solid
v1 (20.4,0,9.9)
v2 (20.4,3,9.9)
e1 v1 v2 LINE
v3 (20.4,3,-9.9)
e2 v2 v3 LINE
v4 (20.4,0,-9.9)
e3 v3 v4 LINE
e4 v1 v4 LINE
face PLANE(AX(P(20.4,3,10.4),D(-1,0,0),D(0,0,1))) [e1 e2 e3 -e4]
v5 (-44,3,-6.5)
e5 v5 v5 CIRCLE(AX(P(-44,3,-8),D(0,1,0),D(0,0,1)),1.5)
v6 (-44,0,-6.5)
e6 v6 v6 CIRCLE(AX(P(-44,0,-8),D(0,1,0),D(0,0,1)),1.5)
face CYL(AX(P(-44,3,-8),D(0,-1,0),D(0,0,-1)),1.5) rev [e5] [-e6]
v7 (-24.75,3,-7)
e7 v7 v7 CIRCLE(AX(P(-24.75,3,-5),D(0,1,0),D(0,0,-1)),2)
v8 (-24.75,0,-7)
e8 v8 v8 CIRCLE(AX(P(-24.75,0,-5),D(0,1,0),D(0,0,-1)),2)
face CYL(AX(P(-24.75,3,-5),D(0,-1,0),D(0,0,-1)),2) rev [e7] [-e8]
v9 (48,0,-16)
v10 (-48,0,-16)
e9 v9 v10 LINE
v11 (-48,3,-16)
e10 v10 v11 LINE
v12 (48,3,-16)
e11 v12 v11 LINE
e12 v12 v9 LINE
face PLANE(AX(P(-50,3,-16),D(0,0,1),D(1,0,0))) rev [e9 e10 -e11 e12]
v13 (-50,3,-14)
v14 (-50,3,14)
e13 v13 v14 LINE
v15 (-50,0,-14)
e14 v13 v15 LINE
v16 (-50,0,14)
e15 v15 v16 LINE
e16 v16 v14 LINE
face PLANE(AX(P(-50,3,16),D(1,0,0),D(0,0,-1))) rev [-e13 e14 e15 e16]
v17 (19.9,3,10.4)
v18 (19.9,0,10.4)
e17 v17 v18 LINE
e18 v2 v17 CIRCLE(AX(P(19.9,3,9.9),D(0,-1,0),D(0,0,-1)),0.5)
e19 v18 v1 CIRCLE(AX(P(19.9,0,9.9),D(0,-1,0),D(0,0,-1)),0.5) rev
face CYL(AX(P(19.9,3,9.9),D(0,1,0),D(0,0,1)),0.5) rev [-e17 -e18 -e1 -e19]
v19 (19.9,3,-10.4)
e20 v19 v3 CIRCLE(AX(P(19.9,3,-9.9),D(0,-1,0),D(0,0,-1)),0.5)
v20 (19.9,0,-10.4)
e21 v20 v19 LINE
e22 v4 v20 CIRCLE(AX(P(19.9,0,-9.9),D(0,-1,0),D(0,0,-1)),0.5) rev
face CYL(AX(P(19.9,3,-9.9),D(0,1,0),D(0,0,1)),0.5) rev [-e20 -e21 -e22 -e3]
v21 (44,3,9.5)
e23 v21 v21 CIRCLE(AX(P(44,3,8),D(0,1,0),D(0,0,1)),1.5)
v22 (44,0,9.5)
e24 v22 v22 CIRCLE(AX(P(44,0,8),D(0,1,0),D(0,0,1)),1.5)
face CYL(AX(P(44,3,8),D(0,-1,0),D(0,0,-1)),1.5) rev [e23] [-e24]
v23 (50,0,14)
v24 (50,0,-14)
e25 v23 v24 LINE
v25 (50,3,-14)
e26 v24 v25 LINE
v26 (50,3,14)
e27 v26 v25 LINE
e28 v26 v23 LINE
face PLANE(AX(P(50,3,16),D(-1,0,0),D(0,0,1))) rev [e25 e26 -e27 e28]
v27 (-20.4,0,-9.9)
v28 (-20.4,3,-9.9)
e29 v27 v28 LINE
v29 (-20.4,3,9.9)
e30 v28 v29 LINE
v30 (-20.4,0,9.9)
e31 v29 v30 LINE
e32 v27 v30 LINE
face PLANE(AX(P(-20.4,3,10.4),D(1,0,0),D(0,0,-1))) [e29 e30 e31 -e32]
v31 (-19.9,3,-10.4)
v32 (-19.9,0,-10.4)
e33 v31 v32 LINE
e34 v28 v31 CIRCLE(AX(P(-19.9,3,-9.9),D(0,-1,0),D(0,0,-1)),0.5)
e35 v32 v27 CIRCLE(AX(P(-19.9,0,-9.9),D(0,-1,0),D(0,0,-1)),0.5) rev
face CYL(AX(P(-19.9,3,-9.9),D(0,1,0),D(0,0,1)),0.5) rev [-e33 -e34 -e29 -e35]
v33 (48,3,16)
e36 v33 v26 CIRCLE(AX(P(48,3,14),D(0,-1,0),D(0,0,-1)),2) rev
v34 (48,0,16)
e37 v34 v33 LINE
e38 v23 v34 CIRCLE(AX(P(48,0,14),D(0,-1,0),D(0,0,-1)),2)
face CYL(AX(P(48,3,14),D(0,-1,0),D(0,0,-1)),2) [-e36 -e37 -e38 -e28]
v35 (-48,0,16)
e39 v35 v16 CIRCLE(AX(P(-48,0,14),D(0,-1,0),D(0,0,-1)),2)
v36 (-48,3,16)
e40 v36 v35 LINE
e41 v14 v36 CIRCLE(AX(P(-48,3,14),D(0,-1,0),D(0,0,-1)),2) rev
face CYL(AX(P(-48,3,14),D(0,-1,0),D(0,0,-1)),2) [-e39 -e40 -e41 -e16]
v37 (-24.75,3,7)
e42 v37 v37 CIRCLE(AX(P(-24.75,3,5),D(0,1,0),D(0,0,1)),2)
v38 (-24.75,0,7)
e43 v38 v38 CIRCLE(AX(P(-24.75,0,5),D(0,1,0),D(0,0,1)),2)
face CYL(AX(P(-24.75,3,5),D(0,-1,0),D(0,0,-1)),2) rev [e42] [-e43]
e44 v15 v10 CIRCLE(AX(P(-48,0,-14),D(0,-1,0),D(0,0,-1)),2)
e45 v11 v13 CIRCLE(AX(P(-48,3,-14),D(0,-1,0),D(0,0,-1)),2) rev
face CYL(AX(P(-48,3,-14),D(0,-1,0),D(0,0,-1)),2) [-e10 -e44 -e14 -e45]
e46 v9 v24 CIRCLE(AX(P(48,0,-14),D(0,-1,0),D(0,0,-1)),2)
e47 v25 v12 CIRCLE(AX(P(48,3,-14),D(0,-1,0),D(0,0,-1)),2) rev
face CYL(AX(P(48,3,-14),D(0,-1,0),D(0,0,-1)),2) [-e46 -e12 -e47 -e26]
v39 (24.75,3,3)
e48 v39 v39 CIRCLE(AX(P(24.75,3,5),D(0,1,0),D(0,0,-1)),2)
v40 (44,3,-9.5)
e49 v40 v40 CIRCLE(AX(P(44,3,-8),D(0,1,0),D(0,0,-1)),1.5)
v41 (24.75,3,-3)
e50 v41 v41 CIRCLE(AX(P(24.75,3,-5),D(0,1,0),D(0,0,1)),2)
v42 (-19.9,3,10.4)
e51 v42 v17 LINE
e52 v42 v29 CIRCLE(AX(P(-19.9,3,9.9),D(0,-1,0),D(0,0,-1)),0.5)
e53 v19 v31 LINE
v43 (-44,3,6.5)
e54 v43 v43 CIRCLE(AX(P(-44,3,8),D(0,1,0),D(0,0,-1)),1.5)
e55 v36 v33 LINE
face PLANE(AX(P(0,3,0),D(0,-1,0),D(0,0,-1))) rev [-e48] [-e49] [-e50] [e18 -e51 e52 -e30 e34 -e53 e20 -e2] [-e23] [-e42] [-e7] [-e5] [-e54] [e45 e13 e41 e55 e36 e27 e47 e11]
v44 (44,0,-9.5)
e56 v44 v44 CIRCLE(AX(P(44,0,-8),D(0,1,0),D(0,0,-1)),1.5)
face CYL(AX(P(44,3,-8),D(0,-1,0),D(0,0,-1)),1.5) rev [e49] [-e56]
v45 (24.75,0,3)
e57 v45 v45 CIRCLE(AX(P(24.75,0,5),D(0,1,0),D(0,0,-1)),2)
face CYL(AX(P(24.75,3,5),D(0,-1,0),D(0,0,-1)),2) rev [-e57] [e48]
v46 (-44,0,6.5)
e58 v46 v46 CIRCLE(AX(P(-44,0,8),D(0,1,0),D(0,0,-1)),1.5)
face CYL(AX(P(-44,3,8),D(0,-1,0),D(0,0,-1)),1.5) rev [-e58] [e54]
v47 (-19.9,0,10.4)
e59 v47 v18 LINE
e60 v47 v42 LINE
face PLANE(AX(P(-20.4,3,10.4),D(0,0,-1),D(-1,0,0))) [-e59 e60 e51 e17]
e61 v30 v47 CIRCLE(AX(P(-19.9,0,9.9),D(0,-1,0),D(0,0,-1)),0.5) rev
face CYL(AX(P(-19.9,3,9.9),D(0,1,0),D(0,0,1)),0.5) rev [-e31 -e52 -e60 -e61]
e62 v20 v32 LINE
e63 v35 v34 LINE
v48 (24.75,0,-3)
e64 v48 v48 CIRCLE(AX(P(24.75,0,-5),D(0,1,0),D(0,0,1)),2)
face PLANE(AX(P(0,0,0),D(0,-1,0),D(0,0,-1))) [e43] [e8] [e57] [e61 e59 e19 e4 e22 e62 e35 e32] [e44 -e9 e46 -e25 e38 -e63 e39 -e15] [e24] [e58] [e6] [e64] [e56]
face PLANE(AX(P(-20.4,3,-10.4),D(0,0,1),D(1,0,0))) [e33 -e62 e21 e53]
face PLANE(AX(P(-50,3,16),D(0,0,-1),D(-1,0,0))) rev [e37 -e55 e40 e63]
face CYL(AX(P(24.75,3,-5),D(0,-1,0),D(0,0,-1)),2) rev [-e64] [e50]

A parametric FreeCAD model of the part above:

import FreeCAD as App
import Part
import Sketcher

V = App.Vector


def edges_at(feature, points):
    """Names of the edges that pass closest to the given points."""
    edges = feature.Shape.Edges
    near = lambda p: min(range(len(edges)), key=lambda i: edges[i].distToShape(Part.Vertex(*p))[0])
    return sorted({f"Edge{near(p) + 1}" for p in points})

doc = App.newDocument("Part")
body = doc.addObject("PartDesign::Body", "Body")

# Sketch on XZ plane
sketch1 = body.newObject("Sketcher::SketchObject", "Sketch")
sketch1.AttachmentSupport = (doc.getObject("XZ_Plane"), [""])
sketch1.MapMode = "FlatFace"
sketch1.addGeometry(Part.LineSegment(V(-50, -16, 0), V(-50, 16, 0)), False)
sketch1.addGeometry(Part.LineSegment(V(-50, 16, 0), V(50, 16, 0)), False)
sketch1.addGeometry(Part.LineSegment(V(50, 16, 0), V(50, -16, 0)), False)
sketch1.addGeometry(Part.LineSegment(V(50, -16, 0), V(-50, -16, 0)), False)
sketch1.addGeometry(Part.Circle(V(-44, 8, 0), V(0, 0, 1), 1.5), False)
sketch1.addGeometry(Part.Circle(V(-24.8, 5, 0), V(0, 0, 1), 2), False)
sketch1.addGeometry(Part.Circle(V(44, 8, 0), V(0, 0, 1), 1.5), False)
sketch1.addGeometry(Part.Circle(V(24.8, 5, 0), V(0, 0, 1), 2), False)
sketch1.addGeometry(Part.Circle(V(-24.8, -5, 0), V(0, 0, 1), 2), False)
sketch1.addGeometry(Part.Circle(V(-44, -8, 0), V(0, 0, 1), 1.5), False)
sketch1.addGeometry(Part.LineSegment(V(20.4, 10.4, 0), V(-20.4, 10.4, 0)), False)
sketch1.addGeometry(Part.LineSegment(V(-20.4, 10.4, 0), V(-20.4, -10.4, 0)), False)
sketch1.addGeometry(Part.LineSegment(V(-20.4, -10.4, 0), V(20.4, -10.4, 0)), False)
sketch1.addGeometry(Part.LineSegment(V(20.4, -10.4, 0), V(20.4, 10.4, 0)), False)
sketch1.addGeometry(Part.Circle(V(24.8, -5, 0), V(0, 0, 1), 2), False)
sketch1.addGeometry(Part.Circle(V(44, -8, 0), V(0, 0, 1), 1.5), False)
sketch1.addConstraint(Sketcher.Constraint("Coincident", 0, 2, 1, 1))
sketch1.addConstraint(Sketcher.Constraint("Coincident", 1, 2, 2, 1))
sketch1.addConstraint(Sketcher.Constraint("Coincident", 2, 2, 3, 1))
sketch1.addConstraint(Sketcher.Constraint("Coincident", 3, 2, 0, 1))
sketch1.addConstraint(Sketcher.Constraint("Coincident", 10, 2, 11, 1))
sketch1.addConstraint(Sketcher.Constraint("Coincident", 11, 2, 12, 1))
sketch1.addConstraint(Sketcher.Constraint("Coincident", 12, 2, 13, 1))
sketch1.addConstraint(Sketcher.Constraint("Coincident", 13, 2, 10, 1))
sketch1.addConstraint(Sketcher.Constraint("Vertical", 0))
sketch1.addConstraint(Sketcher.Constraint("Horizontal", 1))
sketch1.addConstraint(Sketcher.Constraint("Vertical", 2))
sketch1.addConstraint(Sketcher.Constraint("Horizontal", 3))
sketch1.addConstraint(Sketcher.Constraint("Horizontal", 10))
sketch1.addConstraint(Sketcher.Constraint("Vertical", 11))
sketch1.addConstraint(Sketcher.Constraint("Horizontal", 12))
sketch1.addConstraint(Sketcher.Constraint("Vertical", 13))
sketch1.addConstraint(Sketcher.Constraint("Equal", 4, 6))
sketch1.addConstraint(Sketcher.Constraint("Equal", 5, 7))
sketch1.addConstraint(Sketcher.Constraint("Equal", 7, 8))
sketch1.addConstraint(Sketcher.Constraint("Equal", 6, 9))
sketch1.addConstraint(Sketcher.Constraint("Equal", 8, 14))
sketch1.addConstraint(Sketcher.Constraint("Equal", 9, 15))
sketch1.addConstraint(Sketcher.Constraint("Symmetric", 7, 3, 8, 3, -1, 1))
sketch1.addConstraint(Sketcher.Constraint("Symmetric", 6, 3, 9, 3, -1, 1))
sketch1.addConstraint(Sketcher.Constraint("Symmetric", 5, 3, 14, 3, -1, 1))
sketch1.addConstraint(Sketcher.Constraint("Symmetric", 4, 3, 15, 3, -1, 1))
sketch1.addConstraint(Sketcher.Constraint("Symmetric", 0, 2, 2, 2, -1, 1))
sketch1.addConstraint(Sketcher.Constraint("Symmetric", 10, 2, 12, 2, -1, 1))
sketch1.addConstraint(Sketcher.Constraint("Symmetric", 4, 3, 6, 3, -2))
sketch1.addConstraint(Sketcher.Constraint("Symmetric", 5, 3, 7, 3, -2))
sketch1.addConstraint(Sketcher.Constraint("Diameter", 4, 3.0))
sketch1.addConstraint(Sketcher.Constraint("Diameter", 5, 4.0))
sketch1.addConstraint(Sketcher.Constraint("DistanceX", 1, 1, 1, 2, 100.0))
sketch1.addConstraint(Sketcher.Constraint("DistanceY", 0, 1, 0, 2, 32.0))
sketch1.addConstraint(Sketcher.Constraint("DistanceX", 10, 2, 10, 1, 40.8))
sketch1.addConstraint(Sketcher.Constraint("DistanceY", 11, 2, 11, 1, 20.8))
sketch1.addConstraint(Sketcher.Constraint("DistanceX", 4, 3, -1, 1, 44.0))
sketch1.addConstraint(Sketcher.Constraint("DistanceY", -1, 1, 4, 3, 8.0))
sketch1.addConstraint(Sketcher.Constraint("DistanceY", -1, 1, 5, 3, 5.0))
sketch1.addConstraint(Sketcher.Constraint("DistanceX", 5, 3, 7, 3, 49.5))
pad1 = body.newObject("PartDesign::Pad", "Pad")
pad1.Profile = sketch1
pad1.Length = 3
pad1.Reversed = True
doc.recompute()

fillet = body.newObject("PartDesign::Fillet", "Fillet")
fillet.Base = (pad1, edges_at(pad1, [
    (20.4, 1.5, 10.4),
    (20.4, 1.5, -10.4),
    (-20.4, 1.5, -10.4),
    (-20.4, 1.5, 10.4),
]))
fillet.Radius = 0.5
doc.recompute()

fillet2 = body.newObject("PartDesign::Fillet", "Fillet001")
fillet2.Base = (fillet, edges_at(fillet, [
    (50, 1.5, 16),
    (-50, 1.5, 16),
    (-50, 1.5, -16),
    (50, 1.5, -16),
]))
fillet2.Radius = 2

doc.recompute()
